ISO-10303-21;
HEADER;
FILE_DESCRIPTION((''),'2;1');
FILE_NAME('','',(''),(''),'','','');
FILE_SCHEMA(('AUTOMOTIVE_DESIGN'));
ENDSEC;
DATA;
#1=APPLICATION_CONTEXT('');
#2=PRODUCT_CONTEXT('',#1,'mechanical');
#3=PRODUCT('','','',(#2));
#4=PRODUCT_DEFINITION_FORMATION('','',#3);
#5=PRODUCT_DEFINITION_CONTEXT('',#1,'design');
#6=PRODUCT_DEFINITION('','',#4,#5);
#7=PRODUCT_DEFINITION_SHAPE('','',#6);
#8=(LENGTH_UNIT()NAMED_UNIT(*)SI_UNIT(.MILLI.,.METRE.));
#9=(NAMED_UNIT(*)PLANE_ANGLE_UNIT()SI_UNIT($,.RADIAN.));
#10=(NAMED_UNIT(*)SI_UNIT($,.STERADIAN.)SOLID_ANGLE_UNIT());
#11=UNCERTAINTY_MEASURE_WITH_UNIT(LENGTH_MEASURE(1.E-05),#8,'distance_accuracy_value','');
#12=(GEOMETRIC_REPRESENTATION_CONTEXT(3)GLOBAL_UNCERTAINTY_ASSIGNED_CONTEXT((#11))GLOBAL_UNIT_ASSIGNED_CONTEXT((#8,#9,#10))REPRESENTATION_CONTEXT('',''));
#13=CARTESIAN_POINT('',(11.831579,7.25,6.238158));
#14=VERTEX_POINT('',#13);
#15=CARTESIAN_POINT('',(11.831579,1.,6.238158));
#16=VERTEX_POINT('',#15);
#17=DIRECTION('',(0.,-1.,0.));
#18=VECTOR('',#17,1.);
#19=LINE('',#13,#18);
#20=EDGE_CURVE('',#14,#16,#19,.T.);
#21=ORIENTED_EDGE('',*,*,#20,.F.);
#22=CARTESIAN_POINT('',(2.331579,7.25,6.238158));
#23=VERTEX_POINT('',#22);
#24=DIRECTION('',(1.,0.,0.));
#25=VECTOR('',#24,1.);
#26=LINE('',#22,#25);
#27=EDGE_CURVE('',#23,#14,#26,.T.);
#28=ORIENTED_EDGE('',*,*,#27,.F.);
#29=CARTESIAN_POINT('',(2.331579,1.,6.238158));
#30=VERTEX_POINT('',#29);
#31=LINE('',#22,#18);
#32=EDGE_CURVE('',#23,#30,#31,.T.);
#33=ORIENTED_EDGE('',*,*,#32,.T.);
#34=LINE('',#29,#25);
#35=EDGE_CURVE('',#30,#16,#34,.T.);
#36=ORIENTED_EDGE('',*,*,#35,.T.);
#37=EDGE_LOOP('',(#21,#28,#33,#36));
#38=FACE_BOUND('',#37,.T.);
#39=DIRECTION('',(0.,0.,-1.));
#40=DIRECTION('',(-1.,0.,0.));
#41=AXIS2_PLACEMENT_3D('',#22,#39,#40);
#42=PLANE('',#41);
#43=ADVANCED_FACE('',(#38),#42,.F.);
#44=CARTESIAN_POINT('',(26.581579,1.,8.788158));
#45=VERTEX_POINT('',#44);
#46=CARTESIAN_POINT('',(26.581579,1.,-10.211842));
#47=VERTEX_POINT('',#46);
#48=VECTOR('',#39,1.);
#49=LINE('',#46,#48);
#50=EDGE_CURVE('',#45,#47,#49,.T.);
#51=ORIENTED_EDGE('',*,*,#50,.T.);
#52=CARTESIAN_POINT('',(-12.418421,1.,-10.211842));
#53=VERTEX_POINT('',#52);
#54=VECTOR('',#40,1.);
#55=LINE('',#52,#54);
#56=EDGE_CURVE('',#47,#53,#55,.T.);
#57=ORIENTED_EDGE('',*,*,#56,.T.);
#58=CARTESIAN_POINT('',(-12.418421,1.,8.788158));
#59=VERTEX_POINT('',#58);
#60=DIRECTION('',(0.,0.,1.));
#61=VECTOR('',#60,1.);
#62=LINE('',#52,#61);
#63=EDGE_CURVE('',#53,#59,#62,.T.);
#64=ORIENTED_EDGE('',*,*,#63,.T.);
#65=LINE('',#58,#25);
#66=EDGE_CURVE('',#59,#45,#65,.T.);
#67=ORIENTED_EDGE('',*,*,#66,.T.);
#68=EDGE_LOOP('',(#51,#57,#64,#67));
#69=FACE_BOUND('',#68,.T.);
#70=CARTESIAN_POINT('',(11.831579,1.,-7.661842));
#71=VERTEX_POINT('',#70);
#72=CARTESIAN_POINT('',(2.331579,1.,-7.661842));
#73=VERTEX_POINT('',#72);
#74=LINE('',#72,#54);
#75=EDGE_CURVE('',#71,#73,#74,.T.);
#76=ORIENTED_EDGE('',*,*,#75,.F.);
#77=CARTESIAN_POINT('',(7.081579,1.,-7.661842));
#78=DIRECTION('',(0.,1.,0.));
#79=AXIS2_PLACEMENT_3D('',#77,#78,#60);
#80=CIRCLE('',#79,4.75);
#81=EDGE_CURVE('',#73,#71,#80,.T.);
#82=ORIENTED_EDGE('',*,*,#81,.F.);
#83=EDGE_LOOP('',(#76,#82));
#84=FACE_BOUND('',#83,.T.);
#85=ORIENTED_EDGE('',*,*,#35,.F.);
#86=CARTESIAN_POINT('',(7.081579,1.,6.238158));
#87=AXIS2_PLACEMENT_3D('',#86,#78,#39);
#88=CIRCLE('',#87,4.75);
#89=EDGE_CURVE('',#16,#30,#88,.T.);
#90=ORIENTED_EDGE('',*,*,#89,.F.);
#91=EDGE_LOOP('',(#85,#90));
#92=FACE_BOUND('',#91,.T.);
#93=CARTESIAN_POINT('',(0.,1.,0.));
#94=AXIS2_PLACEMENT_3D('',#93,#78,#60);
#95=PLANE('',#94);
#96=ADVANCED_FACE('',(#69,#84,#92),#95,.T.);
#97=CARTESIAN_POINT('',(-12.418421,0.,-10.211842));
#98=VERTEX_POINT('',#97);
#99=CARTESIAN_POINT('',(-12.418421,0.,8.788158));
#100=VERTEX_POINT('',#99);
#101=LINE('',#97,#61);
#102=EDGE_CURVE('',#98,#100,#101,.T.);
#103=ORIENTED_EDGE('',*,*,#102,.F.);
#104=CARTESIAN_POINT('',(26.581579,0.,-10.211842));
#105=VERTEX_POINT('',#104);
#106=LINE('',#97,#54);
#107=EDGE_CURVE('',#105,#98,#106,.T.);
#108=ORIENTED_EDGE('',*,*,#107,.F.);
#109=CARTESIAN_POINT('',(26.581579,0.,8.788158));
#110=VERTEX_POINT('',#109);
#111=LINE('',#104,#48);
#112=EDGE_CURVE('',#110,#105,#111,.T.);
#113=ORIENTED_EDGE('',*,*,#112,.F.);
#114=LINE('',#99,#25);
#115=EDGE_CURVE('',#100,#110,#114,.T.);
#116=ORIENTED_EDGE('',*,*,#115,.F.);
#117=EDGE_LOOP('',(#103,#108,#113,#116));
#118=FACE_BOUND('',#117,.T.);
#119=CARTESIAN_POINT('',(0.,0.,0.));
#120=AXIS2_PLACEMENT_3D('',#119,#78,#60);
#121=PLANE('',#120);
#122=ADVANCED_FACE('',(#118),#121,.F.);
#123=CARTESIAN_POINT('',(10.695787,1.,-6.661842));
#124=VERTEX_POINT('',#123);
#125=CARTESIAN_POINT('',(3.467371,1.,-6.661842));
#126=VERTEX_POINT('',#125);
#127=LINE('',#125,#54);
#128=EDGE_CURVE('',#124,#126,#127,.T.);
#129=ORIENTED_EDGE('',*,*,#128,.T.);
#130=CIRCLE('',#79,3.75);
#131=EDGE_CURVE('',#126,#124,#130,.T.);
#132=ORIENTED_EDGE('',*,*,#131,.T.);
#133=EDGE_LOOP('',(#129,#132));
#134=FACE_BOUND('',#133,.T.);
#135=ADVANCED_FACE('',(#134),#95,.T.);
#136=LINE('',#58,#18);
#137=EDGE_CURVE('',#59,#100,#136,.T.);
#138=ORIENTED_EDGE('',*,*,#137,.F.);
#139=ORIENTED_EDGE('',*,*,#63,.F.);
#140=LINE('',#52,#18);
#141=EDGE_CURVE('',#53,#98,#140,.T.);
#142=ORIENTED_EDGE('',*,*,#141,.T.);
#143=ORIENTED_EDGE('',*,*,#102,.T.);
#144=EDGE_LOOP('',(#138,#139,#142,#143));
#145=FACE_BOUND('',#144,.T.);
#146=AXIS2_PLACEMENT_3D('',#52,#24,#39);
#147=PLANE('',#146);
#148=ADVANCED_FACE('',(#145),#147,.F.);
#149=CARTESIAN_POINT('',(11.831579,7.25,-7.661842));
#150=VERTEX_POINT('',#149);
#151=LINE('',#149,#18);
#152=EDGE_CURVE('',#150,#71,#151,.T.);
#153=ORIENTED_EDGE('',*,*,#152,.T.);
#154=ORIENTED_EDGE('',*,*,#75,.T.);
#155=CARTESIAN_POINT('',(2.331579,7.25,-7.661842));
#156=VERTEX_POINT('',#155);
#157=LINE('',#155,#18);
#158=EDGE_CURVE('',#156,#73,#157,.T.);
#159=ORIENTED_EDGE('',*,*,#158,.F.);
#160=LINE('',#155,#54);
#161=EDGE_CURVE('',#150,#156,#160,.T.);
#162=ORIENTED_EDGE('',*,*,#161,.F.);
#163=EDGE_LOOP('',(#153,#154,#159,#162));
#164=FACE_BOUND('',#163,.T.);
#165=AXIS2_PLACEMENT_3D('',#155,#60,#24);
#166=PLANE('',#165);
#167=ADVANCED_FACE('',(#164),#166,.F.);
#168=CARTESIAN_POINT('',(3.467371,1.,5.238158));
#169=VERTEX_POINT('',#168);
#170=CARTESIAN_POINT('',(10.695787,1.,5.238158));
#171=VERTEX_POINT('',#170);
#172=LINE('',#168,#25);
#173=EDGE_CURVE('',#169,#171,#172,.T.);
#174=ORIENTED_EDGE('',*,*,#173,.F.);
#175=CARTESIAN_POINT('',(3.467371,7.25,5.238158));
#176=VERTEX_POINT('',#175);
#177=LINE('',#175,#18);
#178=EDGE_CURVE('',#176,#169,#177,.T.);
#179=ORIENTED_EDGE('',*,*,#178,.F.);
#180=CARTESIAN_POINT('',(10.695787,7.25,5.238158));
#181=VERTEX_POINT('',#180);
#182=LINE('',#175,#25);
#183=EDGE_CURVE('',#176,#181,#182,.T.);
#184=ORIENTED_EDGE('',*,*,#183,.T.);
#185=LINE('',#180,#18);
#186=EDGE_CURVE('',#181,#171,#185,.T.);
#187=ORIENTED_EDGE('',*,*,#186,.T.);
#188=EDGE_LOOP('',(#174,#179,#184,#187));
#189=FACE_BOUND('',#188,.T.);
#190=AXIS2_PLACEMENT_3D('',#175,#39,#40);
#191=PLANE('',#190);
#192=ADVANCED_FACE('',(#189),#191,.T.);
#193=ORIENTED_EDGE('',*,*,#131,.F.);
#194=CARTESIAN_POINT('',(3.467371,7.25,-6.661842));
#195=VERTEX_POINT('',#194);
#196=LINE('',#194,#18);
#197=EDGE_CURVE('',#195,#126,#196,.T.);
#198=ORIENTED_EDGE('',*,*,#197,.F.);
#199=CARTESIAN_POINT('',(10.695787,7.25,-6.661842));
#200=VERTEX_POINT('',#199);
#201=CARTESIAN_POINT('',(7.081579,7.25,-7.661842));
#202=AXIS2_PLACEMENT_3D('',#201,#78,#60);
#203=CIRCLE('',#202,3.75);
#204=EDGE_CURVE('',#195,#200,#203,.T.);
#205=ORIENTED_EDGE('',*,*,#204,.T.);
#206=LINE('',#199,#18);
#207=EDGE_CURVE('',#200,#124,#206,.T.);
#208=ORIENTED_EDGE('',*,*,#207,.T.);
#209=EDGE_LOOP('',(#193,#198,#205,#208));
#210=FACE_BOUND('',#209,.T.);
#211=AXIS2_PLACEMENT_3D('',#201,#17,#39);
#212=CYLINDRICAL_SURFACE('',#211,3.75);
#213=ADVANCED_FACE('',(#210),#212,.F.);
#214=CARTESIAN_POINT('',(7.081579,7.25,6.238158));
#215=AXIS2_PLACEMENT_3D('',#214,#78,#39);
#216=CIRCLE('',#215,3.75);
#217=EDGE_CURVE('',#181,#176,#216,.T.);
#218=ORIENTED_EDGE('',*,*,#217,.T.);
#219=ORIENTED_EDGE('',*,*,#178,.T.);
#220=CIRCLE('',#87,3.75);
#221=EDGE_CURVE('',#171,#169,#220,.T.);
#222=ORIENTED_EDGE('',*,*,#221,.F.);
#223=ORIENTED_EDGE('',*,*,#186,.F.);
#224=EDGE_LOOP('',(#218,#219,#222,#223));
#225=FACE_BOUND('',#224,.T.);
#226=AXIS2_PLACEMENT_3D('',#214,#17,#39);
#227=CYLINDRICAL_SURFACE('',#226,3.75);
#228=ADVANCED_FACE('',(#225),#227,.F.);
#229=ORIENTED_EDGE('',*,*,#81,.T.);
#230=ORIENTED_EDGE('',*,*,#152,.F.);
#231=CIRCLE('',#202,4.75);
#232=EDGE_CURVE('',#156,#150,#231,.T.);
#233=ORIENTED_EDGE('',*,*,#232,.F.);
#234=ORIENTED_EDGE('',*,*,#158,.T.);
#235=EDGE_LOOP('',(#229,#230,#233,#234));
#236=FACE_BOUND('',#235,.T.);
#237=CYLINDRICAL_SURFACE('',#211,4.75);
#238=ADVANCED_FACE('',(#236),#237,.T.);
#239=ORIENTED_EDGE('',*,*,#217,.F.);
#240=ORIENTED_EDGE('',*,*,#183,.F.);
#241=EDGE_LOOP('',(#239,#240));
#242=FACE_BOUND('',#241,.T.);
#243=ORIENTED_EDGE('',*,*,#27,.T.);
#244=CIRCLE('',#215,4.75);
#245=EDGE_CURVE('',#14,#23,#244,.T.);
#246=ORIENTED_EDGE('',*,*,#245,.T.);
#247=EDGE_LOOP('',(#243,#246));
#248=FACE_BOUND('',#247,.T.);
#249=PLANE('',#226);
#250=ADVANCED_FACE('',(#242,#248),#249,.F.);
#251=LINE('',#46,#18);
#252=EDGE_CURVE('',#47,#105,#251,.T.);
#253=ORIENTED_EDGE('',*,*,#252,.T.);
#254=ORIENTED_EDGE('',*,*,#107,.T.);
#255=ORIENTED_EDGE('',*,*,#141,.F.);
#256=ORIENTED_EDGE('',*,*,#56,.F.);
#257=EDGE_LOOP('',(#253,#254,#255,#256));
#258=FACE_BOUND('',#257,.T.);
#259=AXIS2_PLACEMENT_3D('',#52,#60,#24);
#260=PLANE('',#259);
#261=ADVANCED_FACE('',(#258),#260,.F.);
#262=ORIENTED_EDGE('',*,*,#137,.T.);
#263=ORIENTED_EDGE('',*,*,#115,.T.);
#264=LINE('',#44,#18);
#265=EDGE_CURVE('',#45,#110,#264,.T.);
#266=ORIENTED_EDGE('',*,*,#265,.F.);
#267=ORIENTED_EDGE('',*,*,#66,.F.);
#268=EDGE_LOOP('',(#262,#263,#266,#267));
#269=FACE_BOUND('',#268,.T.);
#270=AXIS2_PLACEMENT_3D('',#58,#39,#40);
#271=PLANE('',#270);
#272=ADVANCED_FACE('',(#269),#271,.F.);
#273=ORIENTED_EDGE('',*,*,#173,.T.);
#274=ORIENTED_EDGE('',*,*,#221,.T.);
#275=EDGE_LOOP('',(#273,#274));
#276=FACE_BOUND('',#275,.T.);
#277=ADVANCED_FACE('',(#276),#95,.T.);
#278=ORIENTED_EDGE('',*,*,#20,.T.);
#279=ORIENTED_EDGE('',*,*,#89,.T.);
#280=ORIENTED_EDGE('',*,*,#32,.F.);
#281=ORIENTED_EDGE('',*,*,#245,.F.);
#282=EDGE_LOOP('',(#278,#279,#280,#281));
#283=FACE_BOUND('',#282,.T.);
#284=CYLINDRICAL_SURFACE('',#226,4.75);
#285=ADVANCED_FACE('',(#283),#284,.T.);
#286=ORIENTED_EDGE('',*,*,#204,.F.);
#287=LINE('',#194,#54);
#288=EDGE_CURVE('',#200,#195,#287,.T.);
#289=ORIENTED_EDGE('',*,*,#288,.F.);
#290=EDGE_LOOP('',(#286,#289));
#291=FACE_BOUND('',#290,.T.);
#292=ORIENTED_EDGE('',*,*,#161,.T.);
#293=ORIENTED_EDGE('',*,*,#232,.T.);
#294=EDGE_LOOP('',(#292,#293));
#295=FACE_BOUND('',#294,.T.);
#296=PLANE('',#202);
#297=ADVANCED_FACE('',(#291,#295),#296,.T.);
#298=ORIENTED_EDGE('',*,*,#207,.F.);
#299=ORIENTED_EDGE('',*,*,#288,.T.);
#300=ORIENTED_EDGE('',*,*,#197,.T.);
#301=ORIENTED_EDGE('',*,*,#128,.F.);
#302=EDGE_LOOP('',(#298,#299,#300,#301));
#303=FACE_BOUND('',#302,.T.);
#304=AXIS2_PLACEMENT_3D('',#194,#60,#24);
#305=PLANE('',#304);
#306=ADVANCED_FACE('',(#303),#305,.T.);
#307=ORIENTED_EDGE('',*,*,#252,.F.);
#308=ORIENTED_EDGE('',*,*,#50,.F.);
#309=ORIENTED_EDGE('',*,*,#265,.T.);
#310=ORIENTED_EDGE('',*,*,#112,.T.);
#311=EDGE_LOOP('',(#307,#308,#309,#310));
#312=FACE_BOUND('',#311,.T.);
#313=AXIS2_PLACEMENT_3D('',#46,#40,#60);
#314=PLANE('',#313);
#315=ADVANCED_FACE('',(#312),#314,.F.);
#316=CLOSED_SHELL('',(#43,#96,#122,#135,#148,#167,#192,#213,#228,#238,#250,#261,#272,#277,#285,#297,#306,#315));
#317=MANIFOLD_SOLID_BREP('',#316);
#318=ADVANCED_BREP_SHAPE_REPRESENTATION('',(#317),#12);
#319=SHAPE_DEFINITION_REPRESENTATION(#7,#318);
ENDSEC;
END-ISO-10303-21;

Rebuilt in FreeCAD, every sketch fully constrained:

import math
import FreeCAD as App
import Part
import Sketcher
Q = App.Units.Quantity


def add_polygon(sketch, points):
    """Adds a closed chain of lines whose ends are joined by coincident constraints."""
    first, n = sketch.GeometryCount, len(points)
    for a, b in zip(points, points[1:] + points[:1]):
        sketch.addGeometry(Part.LineSegment(App.Vector(*a, 0), App.Vector(*b, 0)), False)
    for i in range(n):
        sketch.addConstraint(Sketcher.Constraint("Coincident", first + i, 2, first + (i + 1) % n, 1))

doc = App.newDocument("Part")
body = doc.addObject("PartDesign::Body", "Body")

sketch1 = body.newObject("Sketcher::SketchObject", "Sketch")
sketch1.AttachmentSupport = (doc.getObject("XZ_Plane"), [""])
sketch1.MapMode = "FlatFace"
add_polygon(sketch1, [(-12.418421, -10.211842), (-12.418421, 8.788158), (26.581579, 8.788158), (26.581579, -10.211842)])
sketch1.addConstraint(Sketcher.Constraint("Vertical", 0))
sketch1.addConstraint(Sketcher.Constraint("Horizontal", 1))
sketch1.addConstraint(Sketcher.Constraint("Vertical", 2))
sketch1.addConstraint(Sketcher.Constraint("Horizontal", 3))
sketch1.addConstraint(Sketcher.Constraint("DistanceX", 1, 1, 1, 2, Q("39 mm")))
sketch1.addConstraint(Sketcher.Constraint("DistanceY", 0, 1, 0, 2, Q("19 mm")))
sketch1.addConstraint(Sketcher.Constraint("DistanceX", 0, 2, -1, 1, Q("12.418421 mm")))
sketch1.addConstraint(Sketcher.Constraint("DistanceY", -1, 1, 0, 2, Q("8.788158 mm")))
pad1 = body.newObject("PartDesign::Pad", "Pad")
pad1.Profile = sketch1
pad1.Length = 1
pad1.Reversed = True

sketch2 = body.newObject("Sketcher::SketchObject", "Sketch001")
sketch2.AttachmentSupport = (doc.getObject("XZ_Plane"), [""])
sketch2.MapMode = "FlatFace"
sketch2.AttachmentOffset = App.Placement(App.Vector(0, 0, -1), App.Rotation())
sketch2.addGeometry(Part.LineSegment(App.Vector(11.831579, -7.661842, 0), App.Vector(2.331579, -7.661842, 0)), False)
sketch2.addGeometry(Part.ArcOfCircle(Part.Circle(App.Vector(7.081579, -7.661842, 0), App.Vector(0, 0, 1), 4.75), math.radians(0), math.radians(180)), False)
sketch2.addGeometry(Part.LineSegment(App.Vector(3.467371, -6.661842, 0), App.Vector(10.695787, -6.661842, 0)), False)
sketch2.addGeometry(Part.ArcOfCircle(Part.Circle(App.Vector(7.081579, -7.661842, 0), App.Vector(0, 0, 1), 3.75), math.radians(15.46601), math.radians(164.53399)), False)
sketch2.addGeometry(Part.LineSegment(App.Vector(2.331579, 6.238158, 0), App.Vector(11.831579, 6.238158, 0)), False)
sketch2.addGeometry(Part.ArcOfCircle(Part.Circle(App.Vector(7.081579, 6.238158, 0), App.Vector(0, 0, 1), 4.75), math.radians(180), math.radians(360)), False)
sketch2.addGeometry(Part.LineSegment(App.Vector(10.695787, 5.238158, 0), App.Vector(3.467371, 5.238158, 0)), False)
sketch2.addGeometry(Part.ArcOfCircle(Part.Circle(App.Vector(7.081579, 6.238158, 0), App.Vector(0, 0, 1), 3.75), math.radians(-164.53399), math.radians(-15.46601)), False)
sketch2.addConstraint(Sketcher.Constraint("Coincident", 0, 1, 1, 1))
sketch2.addConstraint(Sketcher.Constraint("Coincident", 1, 2, 0, 2))
sketch2.addConstraint(Sketcher.Constraint("Coincident", 2, 1, 3, 2))
sketch2.addConstraint(Sketcher.Constraint("Coincident", 3, 1, 2, 2))
sketch2.addConstraint(Sketcher.Constraint("Coincident", 4, 1, 5, 1))
sketch2.addConstraint(Sketcher.Constraint("Coincident", 5, 2, 4, 2))
sketch2.addConstraint(Sketcher.Constraint("Coincident", 6, 1, 7, 2))
sketch2.addConstraint(Sketcher.Constraint("Coincident", 7, 1, 6, 2))
sketch2.addConstraint(Sketcher.Constraint("Horizontal", 0))
sketch2.addConstraint(Sketcher.Constraint("Horizontal", 2))
sketch2.addConstraint(Sketcher.Constraint("Horizontal", 4))
sketch2.addConstraint(Sketcher.Constraint("Horizontal", 6))
sketch2.addConstraint(Sketcher.Constraint("Coincident", 3, 3, 1, 3))
sketch2.addConstraint(Sketcher.Constraint("Coincident", 7, 3, 5, 3))
sketch2.addConstraint(Sketcher.Constraint("Equal", 1, 5))
sketch2.addConstraint(Sketcher.Constraint("Equal", 3, 7))
sketch2.addConstraint(Sketcher.Constraint("Horizontal", 3, 3, 0, 1))
sketch2.addConstraint(Sketcher.Constraint("Horizontal", 7, 3, 4, 1))
sketch2.addConstraint(Sketcher.Constraint("Vertical", 3, 3, 5, 3))
sketch2.addConstraint(Sketcher.Constraint("Vertical", 3, 1, 6, 1))
sketch2.addConstraint(Sketcher.Constraint("Radius", 1, Q("4.75 mm")))
sketch2.addConstraint(Sketcher.Constraint("Radius", 3, Q("3.75 mm")))
sketch2.addConstraint(Sketcher.Constraint("DistanceY", 1, 2, 2, 1, Q("1 mm")))
sketch2.addConstraint(Sketcher.Constraint("DistanceY", 1, 3, 5, 3, Q("13.9 mm")))
sketch2.addConstraint(Sketcher.Constraint("DistanceX", -1, 1, 1, 3, Q("7.081579 mm")))
sketch2.addConstraint(Sketcher.Constraint("DistanceY", 1, 3, -1, 1, Q("7.661842 mm")))
pad2 = body.newObject("PartDesign::Pad", "Pad001")
pad2.Profile = sketch2
pad2.Length = 6.25
pad2.Reversed = True

doc.recompute()
